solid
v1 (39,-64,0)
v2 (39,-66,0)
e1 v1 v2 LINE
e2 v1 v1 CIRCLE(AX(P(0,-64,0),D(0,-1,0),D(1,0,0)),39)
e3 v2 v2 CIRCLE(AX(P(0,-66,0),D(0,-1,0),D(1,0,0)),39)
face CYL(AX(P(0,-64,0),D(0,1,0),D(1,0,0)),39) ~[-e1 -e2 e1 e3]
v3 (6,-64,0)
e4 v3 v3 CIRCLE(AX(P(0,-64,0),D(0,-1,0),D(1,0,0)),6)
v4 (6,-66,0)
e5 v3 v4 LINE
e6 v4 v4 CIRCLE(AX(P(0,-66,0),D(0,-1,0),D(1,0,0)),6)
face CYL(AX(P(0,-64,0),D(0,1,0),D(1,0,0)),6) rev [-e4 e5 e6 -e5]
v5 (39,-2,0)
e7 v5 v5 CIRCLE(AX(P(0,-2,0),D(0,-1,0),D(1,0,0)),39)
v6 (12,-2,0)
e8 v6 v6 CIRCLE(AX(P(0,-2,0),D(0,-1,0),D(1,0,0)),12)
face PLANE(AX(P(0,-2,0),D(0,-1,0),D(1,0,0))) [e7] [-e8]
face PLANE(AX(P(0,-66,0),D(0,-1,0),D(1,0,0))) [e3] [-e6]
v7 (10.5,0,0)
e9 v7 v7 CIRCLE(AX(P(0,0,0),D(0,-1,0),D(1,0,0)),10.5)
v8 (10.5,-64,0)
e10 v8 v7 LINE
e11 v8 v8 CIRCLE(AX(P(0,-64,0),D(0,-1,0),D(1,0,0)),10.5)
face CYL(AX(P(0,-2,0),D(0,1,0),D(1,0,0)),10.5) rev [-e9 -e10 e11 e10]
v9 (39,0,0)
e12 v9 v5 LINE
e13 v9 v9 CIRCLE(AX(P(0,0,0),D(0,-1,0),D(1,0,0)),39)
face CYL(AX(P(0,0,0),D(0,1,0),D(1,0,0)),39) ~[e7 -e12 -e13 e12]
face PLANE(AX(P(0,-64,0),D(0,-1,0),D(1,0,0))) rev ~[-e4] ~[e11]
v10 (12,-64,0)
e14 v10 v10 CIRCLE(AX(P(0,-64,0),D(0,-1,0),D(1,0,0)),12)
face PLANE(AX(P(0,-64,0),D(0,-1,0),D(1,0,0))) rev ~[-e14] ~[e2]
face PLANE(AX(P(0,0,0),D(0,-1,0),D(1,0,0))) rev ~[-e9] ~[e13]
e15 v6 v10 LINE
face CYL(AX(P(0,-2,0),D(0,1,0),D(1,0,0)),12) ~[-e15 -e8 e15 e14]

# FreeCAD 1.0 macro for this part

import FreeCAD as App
import Part
import Sketcher

V = App.Vector
Q = App.Units.Quantity

doc = App.newDocument("Part")
params = doc.addObject("Spreadsheet::Sheet", "Params")
for row, (alias, value) in enumerate([
    ("sketch1_diameter", "78 mm"),
    ("sketch1_diameter2", "21 mm"),
    ("pad1_length", "2 mm"),
    ("sketch2_diameter", "24 mm"),
    ("sketch2_diameter2", "21 mm"),
    ("pad2_length", "62 mm"),
    ("sketch3_diameter", "78 mm"),
    ("sketch3_diameter2", "12 mm"),
    ("pad3_length", "2 mm"),
], start=1):
    params.set(f"A{row}", alias)
    params.set(f"B{row}", "=" + value)
    params.setAlias(f"B{row}", alias)

body = doc.addObject("PartDesign::Body", "Body")

sketch1 = doc.addObject("Sketcher::SketchObject", "Sketch")
body.addObject(sketch1)
sketch1.AttachmentSupport = (doc.XZ_Plane, [""])
sketch1.MapMode = "FlatFace"
sketch1.addGeometry(Part.Circle(V(0, 0, 0), V(0, 0, 1), 39), False)
sketch1.addGeometry(Part.Circle(V(0, 0, 0), V(0, 0, 1), 10), False)
sketch1.addConstraint(Sketcher.Constraint("Coincident", 0, 3, -1, 1))
sketch1.addConstraint(Sketcher.Constraint("Coincident", 1, 3, -1, 1))
sketch1.addConstraint(Sketcher.Constraint("Diameter", 0, Q("78 mm")))
sketch1.addConstraint(Sketcher.Constraint("Diameter", 1, Q("21 mm")))
sketch1.setExpression("Constraints[2]", "Params.sketch1_diameter")
sketch1.setExpression("Constraints[3]", "Params.sketch1_diameter2")
pad1 = doc.addObject("PartDesign::Pad", "Pad")
body.addObject(pad1)
pad1.Profile = sketch1
pad1.setExpression("Length", "Params.pad1_length")

sketch2 = doc.addObject("Sketcher::SketchObject", "Sketch001")
body.addObject(sketch2)
sketch2.AttachmentSupport = (doc.XZ_Plane, [""])
sketch2.MapMode = "FlatFace"
sketch2.AttachmentOffset = App.Placement(V(0, 0, 2), App.Rotation())
sketch2.addGeometry(Part.Circle(V(0, 0, 0), V(0, 0, 1), 12), False)
sketch2.addGeometry(Part.Circle(V(0, 0, 0), V(0, 0, 1), 10), False)
sketch2.addConstraint(Sketcher.Constraint("Coincident", 0, 3, -1, 1))
sketch2.addConstraint(Sketcher.Constraint("Coincident", 1, 3, -1, 1))
sketch2.addConstraint(Sketcher.Constraint("Diameter", 0, Q("24 mm")))
sketch2.addConstraint(Sketcher.Constraint("Diameter", 1, Q("21 mm")))
sketch2.setExpression("Constraints[2]", "Params.sketch2_diameter")
sketch2.setExpression("Constraints[3]", "Params.sketch2_diameter2")
pad2 = doc.addObject("PartDesign::Pad", "Pad001")
body.addObject(pad2)
pad2.Profile = sketch2
pad2.setExpression("Length", "Params.pad2_length")

sketch3 = doc.addObject("Sketcher::SketchObject", "Sketch002")
body.addObject(sketch3)
sketch3.AttachmentSupport = (doc.XZ_Plane, [""])
sketch3.MapMode = "FlatFace"
sketch3.AttachmentOffset = App.Placement(V(0, 0, 64), App.Rotation())
sketch3.addGeometry(Part.Circle(V(0, 0, 0), V(0, 0, 1), 39), False)
sketch3.addGeometry(Part.Circle(V(0, 0, 0), V(0, 0, 1), 6), False)
sketch3.addConstraint(Sketcher.Constraint("Coincident", 0, 3, -1, 1))
sketch3.addConstraint(Sketcher.Constraint("Coincident", 1, 3, -1, 1))
sketch3.addConstraint(Sketcher.Constraint("Diameter", 0, Q("78 mm")))
sketch3.addConstraint(Sketcher.Constraint("Diameter", 1, Q("12 mm")))
sketch3.setExpression("Constraints[2]", "Params.sketch3_diameter")
sketch3.setExpression("Constraints[3]", "Params.sketch3_diameter2")
pad3 = doc.addObject("PartDesign::Pad", "Pad002")
body.addObject(pad3)
pad3.Profile = sketch3
pad3.setExpression("Length", "Params.pad3_length")

doc.recompute()
